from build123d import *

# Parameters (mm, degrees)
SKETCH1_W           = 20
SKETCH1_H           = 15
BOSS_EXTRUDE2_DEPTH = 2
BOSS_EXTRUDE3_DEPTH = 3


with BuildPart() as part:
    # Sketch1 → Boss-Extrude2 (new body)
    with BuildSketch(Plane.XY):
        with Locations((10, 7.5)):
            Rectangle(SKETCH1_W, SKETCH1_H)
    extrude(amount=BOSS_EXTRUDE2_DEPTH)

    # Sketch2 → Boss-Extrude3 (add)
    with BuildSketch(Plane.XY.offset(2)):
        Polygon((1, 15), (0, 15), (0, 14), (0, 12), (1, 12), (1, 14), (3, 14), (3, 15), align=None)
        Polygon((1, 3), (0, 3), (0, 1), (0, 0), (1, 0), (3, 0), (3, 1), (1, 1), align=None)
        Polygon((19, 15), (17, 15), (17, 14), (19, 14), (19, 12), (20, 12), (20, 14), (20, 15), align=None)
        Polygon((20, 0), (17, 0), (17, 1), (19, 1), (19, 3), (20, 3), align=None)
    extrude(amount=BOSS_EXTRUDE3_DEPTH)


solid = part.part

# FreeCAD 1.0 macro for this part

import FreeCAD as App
import Part
import Sketcher


def add_polygon(sketch, points):
    """Adds a closed chain of lines whose ends are joined by coincident constraints."""
    first, n = sketch.GeometryCount, len(points)
    for a, b in zip(points, points[1:] + points[:1]):
        sketch.addGeometry(Part.LineSegment(App.Vector(*a, 0), App.Vector(*b, 0)), False)
    for i in range(n):
        sketch.addConstraint(Sketcher.Constraint("Coincident", first + i, 2, first + (i + 1) % n, 1))

doc = App.newDocument("Part")
body = doc.addObject("PartDesign::Body", "Body")

sketch1 = doc.addObject("Sketcher::SketchObject", "Sketch")
body.addObject(sketch1)
sketch1.AttachmentSupport = (doc.XY_Plane, [""])
sketch1.MapMode = "FlatFace"
add_polygon(sketch1, [(0, 15), (0, 0), (20, 0), (20, 15)])
sketch1.addConstraint([
    Sketcher.Constraint("Vertical", 0),
    Sketcher.Constraint("Horizontal", 1),
    Sketcher.Constraint("Vertical", 2),
    Sketcher.Constraint("Horizontal", 3),
    Sketcher.Constraint("Coincident", 0, 2, -1, 1),
    Sketcher.Constraint("DistanceX", 1, 1, 1, 2, 20.0),
    Sketcher.Constraint("DistanceY", 0, 2, 0, 1, 15.0),
])
pad1 = doc.addObject("PartDesign::Pad", "Pad")
body.addObject(pad1)
pad1.Profile = sketch1
pad1.Length = 2

sketch2 = doc.addObject("Sketcher::SketchObject", "Sketch001")
body.addObject(sketch2)
sketch2.AttachmentSupport = (doc.XY_Plane, [""])
sketch2.MapMode = "FlatFace"
sketch2.AttachmentOffset = App.Placement(App.Vector(0, 0, 2), App.Rotation())
add_polygon(sketch2, [(0, 15), (0, 12), (1, 12), (1, 14), (3, 14), (3, 15)])
add_polygon(sketch2, [(1, 3), (0, 3), (0, 0), (3, 0), (3, 1), (1, 1)])
add_polygon(sketch2, [(17, 15), (17, 14), (19, 14), (19, 12), (20, 12), (20, 15)])
add_polygon(sketch2, [(17, 0), (20, 0), (20, 3), (19, 3), (19, 1), (17, 1)])
sketch2.addConstraint([
    Sketcher.Constraint("Vertical", 0),
    Sketcher.Constraint("Horizontal", 1),
    Sketcher.Constraint("Vertical", 2),
    Sketcher.Constraint("Horizontal", 3),
    Sketcher.Constraint("Vertical", 4),
    Sketcher.Constraint("Horizontal", 5),
    Sketcher.Constraint("Horizontal", 6),
    Sketcher.Constraint("Vertical", 7),
    Sketcher.Constraint("Horizontal", 8),
    Sketcher.Constraint("Vertical", 9),
    Sketcher.Constraint("Horizontal", 10),
    Sketcher.Constraint("Vertical", 11),
    Sketcher.Constraint("Vertical", 12),
    Sketcher.Constraint("Horizontal", 13),
    Sketcher.Constraint("Vertical", 14),
    Sketcher.Constraint("Horizontal", 15),
    Sketcher.Constraint("Vertical", 16),
    Sketcher.Constraint("Horizontal", 17),
    Sketcher.Constraint("Horizontal", 18),
    Sketcher.Constraint("Vertical", 19),
    Sketcher.Constraint("Horizontal", 20),
    Sketcher.Constraint("Vertical", 21),
    Sketcher.Constraint("Horizontal", 22),
    Sketcher.Constraint("Vertical", 23),
    Sketcher.Constraint("Coincident", 7, 2, -1, 1),
    Sketcher.Constraint("PointOnObject", 0, 2, -2),
    Sketcher.Constraint("PointOnObject", 18, 2, -1),
    Sketcher.Constraint("Horizontal", 3, 2, 12, 2),
    Sketcher.Constraint("Horizontal", 1, 2, 14, 2),
    Sketcher.Constraint("Horizontal", 5, 2, 16, 2),
    Sketcher.Constraint("Horizontal", 11, 2, 19, 2),
    Sketcher.Constraint("Horizontal", 10, 2, 21, 2),
    Sketcher.Constraint("Vertical", 4, 2, 8, 2),
    Sketcher.Constraint("Vertical", 2, 2, 10, 2),
    Sketcher.Constraint("Vertical", 16, 2, 18, 2),
    Sketcher.Constraint("Vertical", 14, 2, 20, 2),
    Sketcher.Constraint("Vertical", 17, 2, 22, 2),
    Sketcher.Constraint("Equal", 10, 13),
    Sketcher.Constraint("Equal", 6, 15),
    Sketcher.Constraint("Equal", 18, 0),
    Sketcher.Constraint("Equal", 22, 2),
    Sketcher.Constraint("Equal", 0, 7),
    Sketcher.Constraint("Equal", 4, 9),
    Sketcher.Constraint("DistanceX", 1, 1, 1, 2, 1.0),
    Sketcher.Constraint("DistanceX", 3, 1, 3, 2, 2.0),
    Sketcher.Constraint("DistanceY", -1, 1, 0, 2, 12.0),
    Sketcher.Constraint("DistanceX", -1, 1, 12, 2, 17.0),
])
pad2 = doc.addObject("PartDesign::Pad", "Pad001")
body.addObject(pad2)
pad2.Profile = sketch2
pad2.Length = 3

doc.recompute()
